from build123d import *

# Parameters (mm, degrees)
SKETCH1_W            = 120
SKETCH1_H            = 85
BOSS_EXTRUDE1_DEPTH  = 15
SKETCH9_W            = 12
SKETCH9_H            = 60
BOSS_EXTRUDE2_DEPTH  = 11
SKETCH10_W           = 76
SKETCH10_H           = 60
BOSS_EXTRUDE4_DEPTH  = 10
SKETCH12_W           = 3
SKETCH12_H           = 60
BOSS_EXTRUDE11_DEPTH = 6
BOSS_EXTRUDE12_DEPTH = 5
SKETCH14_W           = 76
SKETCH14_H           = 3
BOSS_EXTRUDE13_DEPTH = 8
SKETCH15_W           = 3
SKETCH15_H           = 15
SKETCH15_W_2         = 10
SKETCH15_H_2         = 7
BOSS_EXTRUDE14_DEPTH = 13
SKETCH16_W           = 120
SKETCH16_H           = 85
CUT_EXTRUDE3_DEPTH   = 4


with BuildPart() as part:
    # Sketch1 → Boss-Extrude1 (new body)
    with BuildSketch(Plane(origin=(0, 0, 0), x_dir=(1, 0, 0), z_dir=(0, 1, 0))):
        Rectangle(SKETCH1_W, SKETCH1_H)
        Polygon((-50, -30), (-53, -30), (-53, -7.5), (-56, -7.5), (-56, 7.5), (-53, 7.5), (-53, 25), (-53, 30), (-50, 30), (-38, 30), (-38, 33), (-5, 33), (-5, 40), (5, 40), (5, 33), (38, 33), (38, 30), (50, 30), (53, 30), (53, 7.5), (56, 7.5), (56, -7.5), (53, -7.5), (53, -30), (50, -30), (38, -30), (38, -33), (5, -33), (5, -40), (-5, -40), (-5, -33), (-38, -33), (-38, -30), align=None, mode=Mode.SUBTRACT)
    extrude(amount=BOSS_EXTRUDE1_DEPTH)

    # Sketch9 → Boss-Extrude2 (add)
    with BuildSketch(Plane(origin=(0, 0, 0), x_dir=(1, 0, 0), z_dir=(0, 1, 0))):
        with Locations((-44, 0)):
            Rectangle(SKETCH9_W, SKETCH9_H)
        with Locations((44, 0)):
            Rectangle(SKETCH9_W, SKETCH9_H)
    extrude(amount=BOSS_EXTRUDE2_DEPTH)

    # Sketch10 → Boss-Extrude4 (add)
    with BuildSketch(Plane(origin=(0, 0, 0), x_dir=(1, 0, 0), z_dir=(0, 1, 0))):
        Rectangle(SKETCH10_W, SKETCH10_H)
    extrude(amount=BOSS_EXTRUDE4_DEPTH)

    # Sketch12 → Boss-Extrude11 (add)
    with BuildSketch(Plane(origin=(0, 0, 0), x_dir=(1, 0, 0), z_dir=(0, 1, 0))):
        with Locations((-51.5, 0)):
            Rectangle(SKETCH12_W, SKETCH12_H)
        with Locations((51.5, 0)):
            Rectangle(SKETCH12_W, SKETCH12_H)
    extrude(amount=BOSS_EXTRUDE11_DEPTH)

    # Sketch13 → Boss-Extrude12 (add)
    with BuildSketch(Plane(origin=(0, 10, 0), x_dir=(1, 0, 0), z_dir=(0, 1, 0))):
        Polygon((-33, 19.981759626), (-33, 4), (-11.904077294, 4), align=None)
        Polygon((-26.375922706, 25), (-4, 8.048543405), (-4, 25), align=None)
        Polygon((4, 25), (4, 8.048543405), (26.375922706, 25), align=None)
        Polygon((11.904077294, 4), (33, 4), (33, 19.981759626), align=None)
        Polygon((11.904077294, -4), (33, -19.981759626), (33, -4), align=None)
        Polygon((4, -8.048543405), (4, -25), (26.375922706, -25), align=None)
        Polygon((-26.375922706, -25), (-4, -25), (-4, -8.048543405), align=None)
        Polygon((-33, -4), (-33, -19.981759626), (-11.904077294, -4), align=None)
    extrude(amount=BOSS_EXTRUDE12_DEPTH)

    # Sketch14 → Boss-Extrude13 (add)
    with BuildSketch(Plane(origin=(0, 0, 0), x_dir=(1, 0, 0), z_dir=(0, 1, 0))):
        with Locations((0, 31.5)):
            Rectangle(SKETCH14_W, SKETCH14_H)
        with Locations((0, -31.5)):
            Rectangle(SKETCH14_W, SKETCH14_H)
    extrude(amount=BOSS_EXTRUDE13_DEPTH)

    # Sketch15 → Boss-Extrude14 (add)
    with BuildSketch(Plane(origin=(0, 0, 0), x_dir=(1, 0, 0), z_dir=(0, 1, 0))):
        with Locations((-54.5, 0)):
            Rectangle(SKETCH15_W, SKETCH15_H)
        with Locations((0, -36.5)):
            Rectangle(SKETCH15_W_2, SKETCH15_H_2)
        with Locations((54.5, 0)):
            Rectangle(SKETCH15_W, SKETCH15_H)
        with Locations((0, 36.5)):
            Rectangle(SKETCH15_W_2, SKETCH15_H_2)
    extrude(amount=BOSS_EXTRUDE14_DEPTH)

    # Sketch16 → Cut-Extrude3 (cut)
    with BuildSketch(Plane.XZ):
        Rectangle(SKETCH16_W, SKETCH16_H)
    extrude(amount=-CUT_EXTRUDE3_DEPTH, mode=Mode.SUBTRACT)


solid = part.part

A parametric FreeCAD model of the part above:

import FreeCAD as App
import Part
import Sketcher
from FreeCAD import Vector
Q = App.Units.Quantity

doc = App.newDocument("Part")
body = doc.addObject("PartDesign::Body", "Body")

sketch1 = body.newObject("Sketcher::SketchObject", "Sketch")
sketch1.AttachmentSupport = (doc.getObject("XZ_Plane"), [""])
sketch1.MapMode = "FlatFace"
sketch1.addGeometry(Part.LineSegment(Vector(-60, -42.5, 0), Vector(-60, 42.5, 0)), False)
sketch1.addGeometry(Part.LineSegment(Vector(-60, 42.5, 0), Vector(60, 42.5, 0)), False)
sketch1.addGeometry(Part.LineSegment(Vector(60, 42.5, 0), Vector(60, -42.5, 0)), False)
sketch1.addGeometry(Part.LineSegment(Vector(60, -42.5, 0), Vector(-60, -42.5, 0)), False)
sketch1.addGeometry(Part.LineSegment(Vector(-38, 30, 0), Vector(-53, 30, 0)), False)
sketch1.addGeometry(Part.LineSegment(Vector(-53, 30, 0), Vector(-53, 7.5, 0)), False)
sketch1.addGeometry(Part.LineSegment(Vector(-53, 7.5, 0), Vector(-56, 7.5, 0)), False)
sketch1.addGeometry(Part.LineSegment(Vector(-56, 7.5, 0), Vector(-56, -7.5, 0)), False)
sketch1.addGeometry(Part.LineSegment(Vector(-56, -7.5, 0), Vector(-53, -7.5, 0)), False)
sketch1.addGeometry(Part.LineSegment(Vector(-53, -7.5, 0), Vector(-53, -30, 0)), False)
sketch1.addGeometry(Part.LineSegment(Vector(-53, -30, 0), Vector(-38, -30, 0)), False)
sketch1.addGeometry(Part.LineSegment(Vector(-38, -30, 0), Vector(-38, -33, 0)), False)
sketch1.addGeometry(Part.LineSegment(Vector(-38, -33, 0), Vector(-5, -33, 0)), False)
sketch1.addGeometry(Part.LineSegment(Vector(-5, -33, 0), Vector(-5, -40, 0)), False)
sketch1.addGeometry(Part.LineSegment(Vector(-5, -40, 0), Vector(5, -40, 0)), False)
sketch1.addGeometry(Part.LineSegment(Vector(5, -40, 0), Vector(5, -33, 0)), False)
sketch1.addGeometry(Part.LineSegment(Vector(5, -33, 0), Vector(38, -33, 0)), False)
sketch1.addGeometry(Part.LineSegment(Vector(38, -33, 0), Vector(38, -30, 0)), False)
sketch1.addGeometry(Part.LineSegment(Vector(38, -30, 0), Vector(53, -30, 0)), False)
sketch1.addGeometry(Part.LineSegment(Vector(53, -30, 0), Vector(53, -7.5, 0)), False)
sketch1.addGeometry(Part.LineSegment(Vector(53, -7.5, 0), Vector(56, -7.5, 0)), False)
sketch1.addGeometry(Part.LineSegment(Vector(56, -7.5, 0), Vector(56, 7.5, 0)), False)
sketch1.addGeometry(Part.LineSegment(Vector(56, 7.5, 0), Vector(53, 7.5, 0)), False)
sketch1.addGeometry(Part.LineSegment(Vector(53, 7.5, 0), Vector(53, 30, 0)), False)
sketch1.addGeometry(Part.LineSegment(Vector(53, 30, 0), Vector(38, 30, 0)), False)
sketch1.addGeometry(Part.LineSegment(Vector(38, 30, 0), Vector(38, 33, 0)), False)
sketch1.addGeometry(Part.LineSegment(Vector(38, 33, 0), Vector(5, 33, 0)), False)
sketch1.addGeometry(Part.LineSegment(Vector(5, 33, 0), Vector(5, 40, 0)), False)
sketch1.addGeometry(Part.LineSegment(Vector(5, 40, 0), Vector(-5, 40, 0)), False)
sketch1.addGeometry(Part.LineSegment(Vector(-5, 40, 0), Vector(-5, 33, 0)), False)
sketch1.addGeometry(Part.LineSegment(Vector(-5, 33, 0), Vector(-38, 33, 0)), False)
sketch1.addGeometry(Part.LineSegment(Vector(-38, 33, 0), Vector(-38, 30, 0)), False)
sketch1.addConstraint(Sketcher.Constraint("Coincident", 0, 2, 1, 1))
sketch1.addConstraint(Sketcher.Constraint("Coincident", 1, 2, 2, 1))
sketch1.addConstraint(Sketcher.Constraint("Coincident", 2, 2, 3, 1))
sketch1.addConstraint(Sketcher.Constraint("Coincident", 3, 2, 0, 1))
sketch1.addConstraint(Sketcher.Constraint("Coincident", 4, 2, 5, 1))
sketch1.addConstraint(Sketcher.Constraint("Coincident", 5, 2, 6, 1))
sketch1.addConstraint(Sketcher.Constraint("Coincident", 6, 2, 7, 1))
sketch1.addConstraint(Sketcher.Constraint("Coincident", 7, 2, 8, 1))
sketch1.addConstraint(Sketcher.Constraint("Coincident", 8, 2, 9, 1))
sketch1.addConstraint(Sketcher.Constraint("Coincident", 9, 2, 10, 1))
sketch1.addConstraint(Sketcher.Constraint("Coincident", 10, 2, 11, 1))
sketch1.addConstraint(Sketcher.Constraint("Coincident", 11, 2, 12, 1))
sketch1.addConstraint(Sketcher.Constraint("Coincident", 12, 2, 13, 1))
sketch1.addConstraint(Sketcher.Constraint("Coincident", 13, 2, 14, 1))
sketch1.addConstraint(Sketcher.Constraint("Coincident", 14, 2, 15, 1))
sketch1.addConstraint(Sketcher.Constraint("Coincident", 15, 2, 16, 1))
sketch1.addConstraint(Sketcher.Constraint("Coincident", 16, 2, 17, 1))
sketch1.addConstraint(Sketcher.Constraint("Coincident", 17, 2, 18, 1))
sketch1.addConstraint(Sketcher.Constraint("Coincident", 18, 2, 19, 1))
sketch1.addConstraint(Sketcher.Constraint("Coincident", 19, 2, 20, 1))
sketch1.addConstraint(Sketcher.Constraint("Coincident", 20, 2, 21, 1))
sketch1.addConstraint(Sketcher.Constraint("Coincident", 21, 2, 22, 1))
sketch1.addConstraint(Sketcher.Constraint("Coincident", 22, 2, 23, 1))
sketch1.addConstraint(Sketcher.Constraint("Coincident", 23, 2, 24, 1))
sketch1.addConstraint(Sketcher.Constraint("Coincident", 24, 2, 25, 1))
sketch1.addConstraint(Sketcher.Constraint("Coincident", 25, 2, 26, 1))
sketch1.addConstraint(Sketcher.Constraint("Coincident", 26, 2, 27, 1))
sketch1.addConstraint(Sketcher.Constraint("Coincident", 27, 2, 28, 1))
sketch1.addConstraint(Sketcher.Constraint("Coincident", 28, 2, 29, 1))
sketch1.addConstraint(Sketcher.Constraint("Coincident", 29, 2, 30, 1))
sketch1.addConstraint(Sketcher.Constraint("Coincident", 30, 2, 31, 1))
sketch1.addConstraint(Sketcher.Constraint("Coincident", 31, 2, 4, 1))
sketch1.addConstraint(Sketcher.Constraint("Vertical", 0))
sketch1.addConstraint(Sketcher.Constraint("Horizontal", 1))
sketch1.addConstraint(Sketcher.Constraint("Vertical", 2))
sketch1.addConstraint(Sketcher.Constraint("Horizontal", 3))
sketch1.addConstraint(Sketcher.Constraint("Horizontal", 4))
sketch1.addConstraint(Sketcher.Constraint("Vertical", 5))
sketch1.addConstraint(Sketcher.Constraint("Horizontal", 6))
sketch1.addConstraint(Sketcher.Constraint("Vertical", 7))
sketch1.addConstraint(Sketcher.Constraint("Horizontal", 8))
sketch1.addConstraint(Sketcher.Constraint("Vertical", 9))
sketch1.addConstraint(Sketcher.Constraint("Horizontal", 10))
sketch1.addConstraint(Sketcher.Constraint("Vertical", 11))
sketch1.addConstraint(Sketcher.Constraint("Horizontal", 12))
sketch1.addConstraint(Sketcher.Constraint("Vertical", 13))
sketch1.addConstraint(Sketcher.Constraint("Horizontal", 14))
sketch1.addConstraint(Sketcher.Constraint("Vertical", 15))
sketch1.addConstraint(Sketcher.Constraint("Horizontal", 16))
sketch1.addConstraint(Sketcher.Constraint("Vertical", 17))
sketch1.addConstraint(Sketcher.Constraint("Horizontal", 18))
sketch1.addConstraint(Sketcher.Constraint("Vertical", 19))
sketch1.addConstraint(Sketcher.Constraint("Horizontal", 20))
sketch1.addConstraint(Sketcher.Constraint("Vertical", 21))
sketch1.addConstraint(Sketcher.Constraint("Horizontal", 22))
sketch1.addConstraint(Sketcher.Constraint("Vertical", 23))
sketch1.addConstraint(Sketcher.Constraint("Horizontal", 24))
sketch1.addConstraint(Sketcher.Constraint("Vertical", 25))
sketch1.addConstraint(Sketcher.Constraint("Horizontal", 26))
sketch1.addConstraint(Sketcher.Constraint("Vertical", 27))
sketch1.addConstraint(Sketcher.Constraint("Horizontal", 28))
sketch1.addConstraint(Sketcher.Constraint("Vertical", 29))
sketch1.addConstraint(Sketcher.Constraint("Horizontal", 30))
sketch1.addConstraint(Sketcher.Constraint("Vertical", 31))
sketch1.addConstraint(Sketcher.Constraint("Symmetric", 0, 2, 2, 2, -1, 1))
sketch1.addConstraint(Sketcher.Constraint("Symmetric", 4, 2, 18, 2, -1, 1))
sketch1.addConstraint(Sketcher.Constraint("Symmetric", 6, 2, 20, 2, -1, 1))
sketch1.addConstraint(Sketcher.Constraint("Symmetric", 8, 2, 22, 2, -1, 1))
sketch1.addConstraint(Sketcher.Constraint("Symmetric", 10, 2, 24, 2, -1, 1))
sketch1.addConstraint(Sketcher.Constraint("Symmetric", 12, 2, 26, 2, -1, 1))
sketch1.addConstraint(Sketcher.Constraint("Symmetric", 14, 2, 28, 2, -1, 1))
sketch1.addConstraint(Sketcher.Constraint("Symmetric", 16, 2, 30, 2, -1, 1))
sketch1.addConstraint(Sketcher.Constraint("Symmetric", 12, 2, 15, 2, -2))
sketch1.addConstraint(Sketcher.Constraint("Symmetric", 10, 2, 17, 2, -2))
sketch1.addConstraint(Sketcher.Constraint("Symmetric", 8, 2, 19, 2, -2))
sketch1.addConstraint(Sketcher.Constraint("Equal", 24, 7))
sketch1.addConstraint(Sketcher.Constraint("Equal", 22, 11))
sketch1.addConstraint(Sketcher.Constraint("DistanceX", 1, 1, 1, 2, Q("120 mm")))
sketch1.addConstraint(Sketcher.Constraint("DistanceX", 4, 2, 4, 1, Q("15 mm")))
sketch1.addConstraint(Sketcher.Constraint("DistanceX", 6, 2, 6, 1, Q("3 mm")))
sketch1.addConstraint(Sketcher.Constraint("DistanceX", 12, 1, 12, 2, Q("33 mm")))
sketch1.addConstraint(Sketcher.Constraint("DistanceX", 14, 1, 14, 2, Q("10 mm")))
sketch1.addConstraint(Sketcher.Constraint("DistanceY", 0, 1, 0, 2, Q("85 mm")))
sketch1.addConstraint(Sketcher.Constraint("DistanceY", 13, 2, 13, 1, Q("7 mm")))
sketch1.addConstraint(Sketcher.Constraint("DistanceY", 5, 2, 5, 1, Q("22.5 mm")))
pad1 = body.newObject("PartDesign::Pad", "Pad")
pad1.Profile = sketch1
pad1.Length = 15
pad1.Reversed = True

sketch2 = body.newObject("Sketcher::SketchObject", "Sketch001")
sketch2.AttachmentSupport = (doc.getObject("XZ_Plane"), [""])
sketch2.MapMode = "FlatFace"
sketch2.addGeometry(Part.LineSegment(Vector(-50, -30, 0), Vector(-50, 30, 0)), False)
sketch2.addGeometry(Part.LineSegment(Vector(-50, 30, 0), Vector(-38, 30, 0)), False)
sketch2.addGeometry(Part.LineSegment(Vector(-38, 30, 0), Vector(-38, -30, 0)), False)
sketch2.addGeometry(Part.LineSegment(Vector(-38, -30, 0), Vector(-50, -30, 0)), False)
sketch2.addGeometry(Part.LineSegment(Vector(38, -30, 0), Vector(38, 30, 0)), False)
sketch2.addGeometry(Part.LineSegment(Vector(38, 30, 0), Vector(50, 30, 0)), False)
sketch2.addGeometry(Part.LineSegment(Vector(50, 30, 0), Vector(50, -30, 0)), False)
sketch2.addGeometry(Part.LineSegment(Vector(50, -30, 0), Vector(38, -30, 0)), False)
sketch2.addConstraint(Sketcher.Constraint("Coincident", 0, 2, 1, 1))
sketch2.addConstraint(Sketcher.Constraint("Coincident", 1, 2, 2, 1))
sketch2.addConstraint(Sketcher.Constraint("Coincident", 2, 2, 3, 1))
sketch2.addConstraint(Sketcher.Constraint("Coincident", 3, 2, 0, 1))
sketch2.addConstraint(Sketcher.Constraint("Coincident", 4, 2, 5, 1))
sketch2.addConstraint(Sketcher.Constraint("Coincident", 5, 2, 6, 1))
sketch2.addConstraint(Sketcher.Constraint("Coincident", 6, 2, 7, 1))
sketch2.addConstraint(Sketcher.Constraint("Coincident", 7, 2, 4, 1))
sketch2.addConstraint(Sketcher.Constraint("Vertical", 0))
sketch2.addConstraint(Sketcher.Constraint("Horizontal", 1))
sketch2.addConstraint(Sketcher.Constraint("Vertical", 2))
sketch2.addConstraint(Sketcher.Constraint("Horizontal", 3))
sketch2.addConstraint(Sketcher.Constraint("Vertical", 4))
sketch2.addConstraint(Sketcher.Constraint("Horizontal", 5))
sketch2.addConstraint(Sketcher.Constraint("Vertical", 6))
sketch2.addConstraint(Sketcher.Constraint("Horizontal", 7))
sketch2.addConstraint(Sketcher.Constraint("Symmetric", 2, 2, 4, 2, -1, 1))
sketch2.addConstraint(Sketcher.Constraint("Symmetric", 0, 2, 6, 2, -1, 1))
sketch2.addConstraint(Sketcher.Constraint("Horizontal", 1, 2, 4, 2))
sketch2.addConstraint(Sketcher.Constraint("DistanceX", 1, 1, 1, 2, Q("12 mm")))
sketch2.addConstraint(Sketcher.Constraint("DistanceY", 0, 1, 0, 2, Q("60 mm")))
sketch2.addConstraint(Sketcher.Constraint("DistanceX", 0, 2, -1, 1, Q("50 mm")))
pad2 = body.newObject("PartDesign::Pad", "Pad001")
pad2.Profile = sketch2
pad2.Length = 11
pad2.Reversed = True

sketch3 = body.newObject("Sketcher::SketchObject", "Sketch002")
sketch3.AttachmentSupport = (doc.getObject("XZ_Plane"), [""])
sketch3.MapMode = "FlatFace"
sketch3.addGeometry(Part.LineSegment(Vector(-38, -30, 0), Vector(-38, 30, 0)), False)
sketch3.addGeometry(Part.LineSegment(Vector(-38, 30, 0), Vector(38, 30, 0)), False)
sketch3.addGeometry(Part.LineSegment(Vector(38, 30, 0), Vector(38, -30, 0)), False)
sketch3.addGeometry(Part.LineSegment(Vector(38, -30, 0), Vector(-38, -30, 0)), False)
sketch3.addConstraint(Sketcher.Constraint("Coincident", 0, 2, 1, 1))
sketch3.addConstraint(Sketcher.Constraint("Coincident", 1, 2, 2, 1))
sketch3.addConstraint(Sketcher.Constraint("Coincident", 2, 2, 3, 1))
sketch3.addConstraint(Sketcher.Constraint("Coincident", 3, 2, 0, 1))
sketch3.addConstraint(Sketcher.Constraint("Vertical", 0))
sketch3.addConstraint(Sketcher.Constraint("Horizontal", 1))
sketch3.addConstraint(Sketcher.Constraint("Vertical", 2))
sketch3.addConstraint(Sketcher.Constraint("Horizontal", 3))
sketch3.addConstraint(Sketcher.Constraint("Symmetric", 0, 2, 2, 2, -1, 1))
sketch3.addConstraint(Sketcher.Constraint("DistanceX", 1, 1, 1, 2, Q("76 mm")))
sketch3.addConstraint(Sketcher.Constraint("DistanceY", 0, 1, 0, 2, Q("60 mm")))
pad3 = body.newObject("PartDesign::Pad", "Pad002")
pad3.Profile = sketch3
pad3.Length = 10
pad3.Reversed = True

sketch4 = body.newObject("Sketcher::SketchObject", "Sketch003")
sketch4.AttachmentSupport = (doc.getObject("XZ_Plane"), [""])
sketch4.MapMode = "FlatFace"
sketch4.addGeometry(Part.LineSegment(Vector(-53, -30, 0), Vector(-53, 30, 0)), False)
sketch4.addGeometry(Part.LineSegment(Vector(-53, 30, 0), Vector(-50, 30, 0)), False)
sketch4.addGeometry(Part.LineSegment(Vector(-50, 30, 0), Vector(-50, -30, 0)), False)
sketch4.addGeometry(Part.LineSegment(Vector(-50, -30, 0), Vector(-53, -30, 0)), False)
sketch4.addGeometry(Part.LineSegment(Vector(50, -30, 0), Vector(50, 30, 0)), False)
sketch4.addGeometry(Part.LineSegment(Vector(50, 30, 0), Vector(53, 30, 0)), False)
sketch4.addGeometry(Part.LineSegment(Vector(53, 30, 0), Vector(53, -30, 0)), False)
sketch4.addGeometry(Part.LineSegment(Vector(53, -30, 0), Vector(50, -30, 0)), False)
sketch4.addConstraint(Sketcher.Constraint("Coincident", 0, 2, 1, 1))
sketch4.addConstraint(Sketcher.Constraint("Coincident", 1, 2, 2, 1))
sketch4.addConstraint(Sketcher.Constraint("Coincident", 2, 2, 3, 1))
sketch4.addConstraint(Sketcher.Constraint("Coincident", 3, 2, 0, 1))
sketch4.addConstraint(Sketcher.Constraint("Coincident", 4, 2, 5, 1))
sketch4.addConstraint(Sketcher.Constraint("Coincident", 5, 2, 6, 1))
sketch4.addConstraint(Sketcher.Constraint("Coincident", 6, 2, 7, 1))
sketch4.addConstraint(Sketcher.Constraint("Coincident", 7, 2, 4, 1))
sketch4.addConstraint(Sketcher.Constraint("Vertical", 0))
sketch4.addConstraint(Sketcher.Constraint("Horizontal", 1))
sketch4.addConstraint(Sketcher.Constraint("Vertical", 2))
sketch4.addConstraint(Sketcher.Constraint("Horizontal", 3))
sketch4.addConstraint(Sketcher.Constraint("Vertical", 4))
sketch4.addConstraint(Sketcher.Constraint("Horizontal", 5))
sketch4.addConstraint(Sketcher.Constraint("Vertical", 6))
sketch4.addConstraint(Sketcher.Constraint("Horizontal", 7))
sketch4.addConstraint(Sketcher.Constraint("Symmetric", 2, 2, 4, 2, -1, 1))
sketch4.addConstraint(Sketcher.Constraint("Symmetric", 0, 2, 6, 2, -1, 1))
sketch4.addConstraint(Sketcher.Constraint("Horizontal", 1, 2, 4, 2))
sketch4.addConstraint(Sketcher.Constraint("DistanceX", 1, 1, 1, 2, Q("3 mm")))
sketch4.addConstraint(Sketcher.Constraint("DistanceY", 0, 1, 0, 2, Q("60 mm")))
sketch4.addConstraint(Sketcher.Constraint("DistanceX", 0, 2, -1, 1, Q("53 mm")))
pad4 = body.newObject("PartDesign::Pad", "Pad003")
pad4.Profile = sketch4
pad4.Length = 6
pad4.Reversed = True

sketch5 = body.newObject("Sketcher::SketchObject", "Sketch004")
sketch5.AttachmentSupport = (doc.getObject("XZ_Plane"), [""])
sketch5.MapMode = "FlatFace"
sketch5.AttachmentOffset = App.Placement(Vector(0, 0, -10), App.Rotation())
sketch5.addGeometry(Part.LineSegment(Vector(-33, -19.98176, 0), Vector(-33, -4, 0)), False)
sketch5.addGeometry(Part.LineSegment(Vector(-33, -4, 0), Vector(-11.904077, -4, 0)), False)
sketch5.addGeometry(Part.LineSegment(Vector(-11.904077, -4, 0), Vector(-33, -19.98176, 0)), False)
sketch5.addGeometry(Part.LineSegment(Vector(-26.375923, -25, 0), Vector(-4, -8.048543, 0)), False)
sketch5.addGeometry(Part.LineSegment(Vector(-4, -8.048543, 0), Vector(-4, -25, 0)), False)
sketch5.addGeometry(Part.LineSegment(Vector(-4, -25, 0), Vector(-26.375923, -25, 0)), False)
sketch5.addGeometry(Part.LineSegment(Vector(4, -25, 0), Vector(4, -8.048543, 0)), False)
sketch5.addGeometry(Part.LineSegment(Vector(4, -8.048543, 0), Vector(26.375923, -25, 0)), False)
sketch5.addGeometry(Part.LineSegment(Vector(26.375923, -25, 0), Vector(4, -25, 0)), False)
sketch5.addGeometry(Part.LineSegment(Vector(11.904077, -4, 0), Vector(33, -4, 0)), False)
sketch5.addGeometry(Part.LineSegment(Vector(33, -4, 0), Vector(33, -19.98176, 0)), False)
sketch5.addGeometry(Part.LineSegment(Vector(33, -19.98176, 0), Vector(11.904077, -4, 0)), False)
sketch5.addGeometry(Part.LineSegment(Vector(11.904077, 4, 0), Vector(33, 19.98176, 0)), False)
sketch5.addGeometry(Part.LineSegment(Vector(33, 19.98176, 0), Vector(33, 4, 0)), False)
sketch5.addGeometry(Part.LineSegment(Vector(33, 4, 0), Vector(11.904077, 4, 0)), False)
sketch5.addGeometry(Part.LineSegment(Vector(4, 8.048543, 0), Vector(4, 25, 0)), False)
sketch5.addGeometry(Part.LineSegment(Vector(4, 25, 0), Vector(26.375923, 25, 0)), False)
sketch5.addGeometry(Part.LineSegment(Vector(26.375923, 25, 0), Vector(4, 8.048543, 0)), False)
sketch5.addGeometry(Part.LineSegment(Vector(-26.375923, 25, 0), Vector(-4, 25, 0)), False)
sketch5.addGeometry(Part.LineSegment(Vector(-4, 25, 0), Vector(-4, 8.048543, 0)), False)
sketch5.addGeometry(Part.LineSegment(Vector(-4, 8.048543, 0), Vector(-26.375923, 25, 0)), False)
sketch5.addGeometry(Part.LineSegment(Vector(-33, 4, 0), Vector(-33, 19.98176, 0)), False)
sketch5.addGeometry(Part.LineSegment(Vector(-33, 19.98176, 0), Vector(-11.904077, 4, 0)), False)
sketch5.addGeometry(Part.LineSegment(Vector(-11.904077, 4, 0), Vector(-33, 4, 0)), False)
sketch5.addConstraint(Sketcher.Constraint("Coincident", 0, 2, 1, 1))
sketch5.addConstraint(Sketcher.Constraint("Coincident", 1, 2, 2, 1))
sketch5.addConstraint(Sketcher.Constraint("Coincident", 2, 2, 0, 1))
sketch5.addConstraint(Sketcher.Constraint("Coincident", 3, 2, 4, 1))
sketch5.addConstraint(Sketcher.Constraint("Coincident", 4, 2, 5, 1))
sketch5.addConstraint(Sketcher.Constraint("Coincident", 5, 2, 3, 1))
sketch5.addConstraint(Sketcher.Constraint("Coincident", 6, 2, 7, 1))
sketch5.addConstraint(Sketcher.Constraint("Coincident", 7, 2, 8, 1))
sketch5.addConstraint(Sketcher.Constraint("Coincident", 8, 2, 6, 1))
sketch5.addConstraint(Sketcher.Constraint("Coincident", 9, 2, 10, 1))
sketch5.addConstraint(Sketcher.Constraint("Coincident", 10, 2, 11, 1))
sketch5.addConstraint(Sketcher.Constraint("Coincident", 11, 2, 9, 1))
sketch5.addConstraint(Sketcher.Constraint("Coincident", 12, 2, 13, 1))
sketch5.addConstraint(Sketcher.Constraint("Coincident", 13, 2, 14, 1))
sketch5.addConstraint(Sketcher.Constraint("Coincident", 14, 2, 12, 1))
sketch5.addConstraint(Sketcher.Constraint("Coincident", 15, 2, 16, 1))
sketch5.addConstraint(Sketcher.Constraint("Coincident", 16, 2, 17, 1))
sketch5.addConstraint(Sketcher.Constraint("Coincident", 17, 2, 15, 1))
sketch5.addConstraint(Sketcher.Constraint("Coincident", 18, 2, 19, 1))
sketch5.addConstraint(Sketcher.Constraint("Coincident", 19, 2, 20, 1))
sketch5.addConstraint(Sketcher.Constraint("Coincident", 20, 2, 18, 1))
sketch5.addConstraint(Sketcher.Constraint("Coincident", 21, 2, 22, 1))
sketch5.addConstraint(Sketcher.Constraint("Coincident", 22, 2, 23, 1))
sketch5.addConstraint(Sketcher.Constraint("Coincident", 23, 2, 21, 1))
sketch5.addConstraint(Sketcher.Constraint("Vertical", 0))
sketch5.addConstraint(Sketcher.Constraint("Horizontal", 1))
sketch5.addConstraint(Sketcher.Constraint("Vertical", 4))
sketch5.addConstraint(Sketcher.Constraint("Horizontal", 5))
sketch5.addConstraint(Sketcher.Constraint("Vertical", 6))
sketch5.addConstraint(Sketcher.Constraint("Horizontal", 8))
sketch5.addConstraint(Sketcher.Constraint("Horizontal", 9))
sketch5.addConstraint(Sketcher.Constraint("Vertical", 10))
sketch5.addConstraint(Sketcher.Constraint("Vertical", 13))
sketch5.addConstraint(Sketcher.Constraint("Horizontal", 14))
sketch5.addConstraint(Sketcher.Constraint("Vertical", 15))
sketch5.addConstraint(Sketcher.Constraint("Horizontal", 16))
sketch5.addConstraint(Sketcher.Constraint("Horizontal", 18))
sketch5.addConstraint(Sketcher.Constraint("Vertical", 19))
sketch5.addConstraint(Sketcher.Constraint("Vertical", 21))
sketch5.addConstraint(Sketcher.Constraint("Horizontal", 23))
sketch5.addConstraint(Sketcher.Constraint("Symmetric", 2, 2, 12, 2, -1, 1))
sketch5.addConstraint(Sketcher.Constraint("Symmetric", 1, 2, 14, 2, -1, 1))
sketch5.addConstraint(Sketcher.Constraint("Symmetric", 4, 2, 15, 2, -1, 1))
sketch5.addConstraint(Sketcher.Constraint("Symmetric", 8, 2, 18, 2, -1, 1))
sketch5.addConstraint(Sketcher.Constraint("Symmetric", 10, 2, 21, 2, -1, 1))
sketch5.addConstraint(Sketcher.Constraint("Symmetric", 11, 2, 22, 2, -1, 1))
sketch5.addConstraint(Sketcher.Constraint("Symmetric", 3, 2, 6, 2, -2))
sketch5.addConstraint(Sketcher.Constraint("Symmetric", 5, 2, 7, 2, -2))
sketch5.addConstraint(Sketcher.Constraint("Symmetric", 0, 2, 9, 2, -2))
sketch5.addConstraint(Sketcher.Constraint("Parallel", 2, 3))
sketch5.addConstraint(Sketcher.Constraint("Parallel", 7, 11))
sketch5.addConstraint(Sketcher.Constraint("Parallel", 12, 17))
sketch5.addConstraint(Sketcher.Constraint("Parallel", 11, 20))
sketch5.addConstraint(Sketcher.Constraint("Horizontal", 2, 2, 10, 2))
sketch5.addConstraint(Sketcher.Constraint("Horizontal", 17, 2, 19, 2))
sketch5.addConstraint(Sketcher.Constraint("Vertical", 7, 2, 16, 2))
sketch5.addConstraint(Sketcher.Constraint("DistanceX", 0, 2, -1, 1, Q("33 mm")))
sketch5.addConstraint(Sketcher.Constraint("DistanceY", 0, 2, -1, 1, Q("4 mm")))
sketch5.addConstraint(Sketcher.Constraint("DistanceX", 3, 2, -1, 1, Q("4 mm")))
sketch5.addConstraint(Sketcher.Constraint("DistanceY", 4, 2, -1, 1, Q("25 mm")))
sketch5.addConstraint(Sketcher.Constraint("DistanceX", 1, 2, 7, 2, Q("38.28 mm")))
sketch5.addConstraint(Sketcher.Constraint("DistanceY", 0, 1, 0, 2, Q("15.98176 mm")))
sketch5.addConstraint(Sketcher.Constraint("Distance", 3, Q("28.07194 mm")))
pad5 = body.newObject("PartDesign::Pad", "Pad004")
pad5.Profile = sketch5
pad5.Length = 5
pad5.Reversed = True

sketch6 = body.newObject("Sketcher::SketchObject", "Sketch005")
sketch6.AttachmentSupport = (doc.getObject("XZ_Plane"), [""])
sketch6.MapMode = "FlatFace"
sketch6.addGeometry(Part.LineSegment(Vector(-38, -33, 0), Vector(-38, -30, 0)), False)
sketch6.addGeometry(Part.LineSegment(Vector(-38, -30, 0), Vector(38, -30, 0)), False)
sketch6.addGeometry(Part.LineSegment(Vector(38, -30, 0), Vector(38, -33, 0)), False)
sketch6.addGeometry(Part.LineSegment(Vector(38, -33, 0), Vector(-38, -33, 0)), False)
sketch6.addGeometry(Part.LineSegment(Vector(-38, 30, 0), Vector(-38, 33, 0)), False)
sketch6.addGeometry(Part.LineSegment(Vector(-38, 33, 0), Vector(38, 33, 0)), False)
sketch6.addGeometry(Part.LineSegment(Vector(38, 33, 0), Vector(38, 30, 0)), False)
sketch6.addGeometry(Part.LineSegment(Vector(38, 30, 0), Vector(-38, 30, 0)), False)
sketch6.addConstraint(Sketcher.Constraint("Coincident", 0, 2, 1, 1))
sketch6.addConstraint(Sketcher.Constraint("Coincident", 1, 2, 2, 1))
sketch6.addConstraint(Sketcher.Constraint("Coincident", 2, 2, 3, 1))
sketch6.addConstraint(Sketcher.Constraint("Coincident", 3, 2, 0, 1))
sketch6.addConstraint(Sketcher.Constraint("Coincident", 4, 2, 5, 1))
sketch6.addConstraint(Sketcher.Constraint("Coincident", 5, 2, 6, 1))
sketch6.addConstraint(Sketcher.Constraint("Coincident", 6, 2, 7, 1))
sketch6.addConstraint(Sketcher.Constraint("Coincident", 7, 2, 4, 1))
sketch6.addConstraint(Sketcher.Constraint("Vertical", 0))
sketch6.addConstraint(Sketcher.Constraint("Horizontal", 1))
sketch6.addConstraint(Sketcher.Constraint("Vertical", 2))
sketch6.addConstraint(Sketcher.Constraint("Horizontal", 3))
sketch6.addConstraint(Sketcher.Constraint("Vertical", 4))
sketch6.addConstraint(Sketcher.Constraint("Horizontal", 5))
sketch6.addConstraint(Sketcher.Constraint("Vertical", 6))
sketch6.addConstraint(Sketcher.Constraint("Horizontal", 7))
sketch6.addConstraint(Sketcher.Constraint("Symmetric", 2, 2, 4, 2, -1, 1))
sketch6.addConstraint(Sketcher.Constraint("Symmetric", 0, 2, 6, 2, -1, 1))
sketch6.addConstraint(Sketcher.Constraint("Vertical", 3, 2, 4, 2))
sketch6.addConstraint(Sketcher.Constraint("DistanceX", 1, 1, 1, 2, Q("76 mm")))
sketch6.addConstraint(Sketcher.Constraint("DistanceY", 0, 1, 0, 2, Q("3 mm")))
sketch6.addConstraint(Sketcher.Constraint("DistanceY", 0, 2, -1, 1, Q("30 mm")))
pad6 = body.newObject("PartDesign::Pad", "Pad005")
pad6.Profile = sketch6
pad6.Length = 8
pad6.Reversed = True

sketch7 = body.newObject("Sketcher::SketchObject", "Sketch006")
sketch7.AttachmentSupport = (doc.getObject("XZ_Plane"), [""])
sketch7.MapMode = "FlatFace"
sketch7.addGeometry(Part.LineSegment(Vector(-56, -7.5, 0), Vector(-56, 7.5, 0)), False)
sketch7.addGeometry(Part.LineSegment(Vector(-56, 7.5, 0), Vector(-53, 7.5, 0)), False)
sketch7.addGeometry(Part.LineSegment(Vector(-53, 7.5, 0), Vector(-53, -7.5, 0)), False)
sketch7.addGeometry(Part.LineSegment(Vector(-53, -7.5, 0), Vector(-56, -7.5, 0)), False)
sketch7.addGeometry(Part.LineSegment(Vector(-5, 33, 0), Vector(-5, 40, 0)), False)
sketch7.addGeometry(Part.LineSegment(Vector(-5, 40, 0), Vector(5, 40, 0)), False)
sketch7.addGeometry(Part.LineSegment(Vector(5, 40, 0), Vector(5, 33, 0)), False)
sketch7.addGeometry(Part.LineSegment(Vector(5, 33, 0), Vector(-5, 33, 0)), False)
sketch7.addGeometry(Part.LineSegment(Vector(53, -7.5, 0), Vector(53, 7.5, 0)), False)
sketch7.addGeometry(Part.LineSegment(Vector(53, 7.5, 0), Vector(56, 7.5, 0)), False)
sketch7.addGeometry(Part.LineSegment(Vector(56, 7.5, 0), Vector(56, -7.5, 0)), False)
sketch7.addGeometry(Part.LineSegment(Vector(56, -7.5, 0), Vector(53, -7.5, 0)), False)
sketch7.addGeometry(Part.LineSegment(Vector(-5, -40, 0), Vector(-5, -33, 0)), False)
sketch7.addGeometry(Part.LineSegment(Vector(-5, -33, 0), Vector(5, -33, 0)), False)
sketch7.addGeometry(Part.LineSegment(Vector(5, -33, 0), Vector(5, -40, 0)), False)
sketch7.addGeometry(Part.LineSegment(Vector(5, -40, 0), Vector(-5, -40, 0)), False)
sketch7.addConstraint(Sketcher.Constraint("Coincident", 0, 2, 1, 1))
sketch7.addConstraint(Sketcher.Constraint("Coincident", 1, 2, 2, 1))
sketch7.addConstraint(Sketcher.Constraint("Coincident", 2, 2, 3, 1))
sketch7.addConstraint(Sketcher.Constraint("Coincident", 3, 2, 0, 1))
sketch7.addConstraint(Sketcher.Constraint("Coincident", 4, 2, 5, 1))
sketch7.addConstraint(Sketcher.Constraint("Coincident", 5, 2, 6, 1))
sketch7.addConstraint(Sketcher.Constraint("Coincident", 6, 2, 7, 1))
sketch7.addConstraint(Sketcher.Constraint("Coincident", 7, 2, 4, 1))
sketch7.addConstraint(Sketcher.Constraint("Coincident", 8, 2, 9, 1))
sketch7.addConstraint(Sketcher.Constraint("Coincident", 9, 2, 10, 1))
sketch7.addConstraint(Sketcher.Constraint("Coincident", 10, 2, 11, 1))
sketch7.addConstraint(Sketcher.Constraint("Coincident", 11, 2, 8, 1))
sketch7.addConstraint(Sketcher.Constraint("Coincident", 12, 2, 13, 1))
sketch7.addConstraint(Sketcher.Constraint("Coincident", 13, 2, 14, 1))
sketch7.addConstraint(Sketcher.Constraint("Coincident", 14, 2, 15, 1))
sketch7.addConstraint(Sketcher.Constraint("Coincident", 15, 2, 12, 1))
sketch7.addConstraint(Sketcher.Constraint("Vertical", 0))
sketch7.addConstraint(Sketcher.Constraint("Horizontal", 1))
sketch7.addConstraint(Sketcher.Constraint("Vertical", 2))
sketch7.addConstraint(Sketcher.Constraint("Horizontal", 3))
sketch7.addConstraint(Sketcher.Constraint("Vertical", 4))
sketch7.addConstraint(Sketcher.Constraint("Horizontal", 5))
sketch7.addConstraint(Sketcher.Constraint("Vertical", 6))
sketch7.addConstraint(Sketcher.Constraint("Horizontal", 7))
sketch7.addConstraint(Sketcher.Constraint("Vertical", 8))
sketch7.addConstraint(Sketcher.Constraint("Horizontal", 9))
sketch7.addConstraint(Sketcher.Constraint("Vertical", 10))
sketch7.addConstraint(Sketcher.Constraint("Horizontal", 11))
sketch7.addConstraint(Sketcher.Constraint("Vertical", 12))
sketch7.addConstraint(Sketcher.Constraint("Horizontal", 13))
sketch7.addConstraint(Sketcher.Constraint("Vertical", 14))
sketch7.addConstraint(Sketcher.Constraint("Horizontal", 15))
sketch7.addConstraint(Sketcher.Constraint("Symmetric", 2, 2, 8, 2, -1, 1))
sketch7.addConstraint(Sketcher.Constraint("Symmetric", 0, 2, 10, 2, -1, 1))
sketch7.addConstraint(Sketcher.Constraint("Symmetric", 6, 2, 12, 2, -1, 1))
sketch7.addConstraint(Sketcher.Constraint("Symmetric", 4, 2, 14, 2, -1, 1))
sketch7.addConstraint(Sketcher.Constraint("Horizontal", 1, 2, 8, 2))
sketch7.addConstraint(Sketcher.Constraint("Vertical", 7, 2, 12, 2))
sketch7.addConstraint(Sketcher.Constraint("DistanceX", 1, 1, 1, 2, Q("3 mm")))
sketch7.addConstraint(Sketcher.Constraint("DistanceX", 5, 1, 5, 2, Q("10 mm")))
sketch7.addConstraint(Sketcher.Constraint("DistanceY", 0, 1, 0, 2, Q("15 mm")))
sketch7.addConstraint(Sketcher.Constraint("DistanceY", 4, 1, 4, 2, Q("7 mm")))
sketch7.addConstraint(Sketcher.Constraint("DistanceX", 0, 2, -1, 1, Q("56 mm")))
sketch7.addConstraint(Sketcher.Constraint("DistanceY", -1, 1, 4, 2, Q("40 mm")))
pad7 = body.newObject("PartDesign::Pad", "Pad006")
pad7.Profile = sketch7
pad7.Length = 13
pad7.Reversed = True

sketch8 = body.newObject("Sketcher::SketchObject", "Sketch007")
sketch8.AttachmentSupport = (doc.getObject("XZ_Plane"), [""])
sketch8.MapMode = "FlatFace"
sketch8.addGeometry(Part.LineSegment(Vector(-60, 42.5, 0), Vector(-60, -42.5, 0)), False)
sketch8.addGeometry(Part.LineSegment(Vector(-60, -42.5, 0), Vector(60, -42.5, 0)), False)
sketch8.addGeometry(Part.LineSegment(Vector(60, -42.5, 0), Vector(60, 42.5, 0)), False)
sketch8.addGeometry(Part.LineSegment(Vector(60, 42.5, 0), Vector(-60, 42.5, 0)), False)
sketch8.addConstraint(Sketcher.Constraint("Coincident", 0, 2, 1, 1))
sketch8.addConstraint(Sketcher.Constraint("Coincident", 1, 2, 2, 1))
sketch8.addConstraint(Sketcher.Constraint("Coincident", 2, 2, 3, 1))
sketch8.addConstraint(Sketcher.Constraint("Coincident", 3, 2, 0, 1))
sketch8.addConstraint(Sketcher.Constraint("Vertical", 0))
sketch8.addConstraint(Sketcher.Constraint("Horizontal", 1))
sketch8.addConstraint(Sketcher.Constraint("Vertical", 2))
sketch8.addConstraint(Sketcher.Constraint("Horizontal", 3))
sketch8.addConstraint(Sketcher.Constraint("Symmetric", 0, 2, 2, 2, -1, 1))
sketch8.addConstraint(Sketcher.Constraint("DistanceX", 1, 1, 1, 2, Q("120 mm")))
sketch8.addConstraint(Sketcher.Constraint("DistanceY", 0, 2, 0, 1, Q("85 mm")))
pocket1 = body.newObject("PartDesign::Pocket", "Pocket")
pocket1.Profile = sketch8
pocket1.Length = 4

doc.recompute()
